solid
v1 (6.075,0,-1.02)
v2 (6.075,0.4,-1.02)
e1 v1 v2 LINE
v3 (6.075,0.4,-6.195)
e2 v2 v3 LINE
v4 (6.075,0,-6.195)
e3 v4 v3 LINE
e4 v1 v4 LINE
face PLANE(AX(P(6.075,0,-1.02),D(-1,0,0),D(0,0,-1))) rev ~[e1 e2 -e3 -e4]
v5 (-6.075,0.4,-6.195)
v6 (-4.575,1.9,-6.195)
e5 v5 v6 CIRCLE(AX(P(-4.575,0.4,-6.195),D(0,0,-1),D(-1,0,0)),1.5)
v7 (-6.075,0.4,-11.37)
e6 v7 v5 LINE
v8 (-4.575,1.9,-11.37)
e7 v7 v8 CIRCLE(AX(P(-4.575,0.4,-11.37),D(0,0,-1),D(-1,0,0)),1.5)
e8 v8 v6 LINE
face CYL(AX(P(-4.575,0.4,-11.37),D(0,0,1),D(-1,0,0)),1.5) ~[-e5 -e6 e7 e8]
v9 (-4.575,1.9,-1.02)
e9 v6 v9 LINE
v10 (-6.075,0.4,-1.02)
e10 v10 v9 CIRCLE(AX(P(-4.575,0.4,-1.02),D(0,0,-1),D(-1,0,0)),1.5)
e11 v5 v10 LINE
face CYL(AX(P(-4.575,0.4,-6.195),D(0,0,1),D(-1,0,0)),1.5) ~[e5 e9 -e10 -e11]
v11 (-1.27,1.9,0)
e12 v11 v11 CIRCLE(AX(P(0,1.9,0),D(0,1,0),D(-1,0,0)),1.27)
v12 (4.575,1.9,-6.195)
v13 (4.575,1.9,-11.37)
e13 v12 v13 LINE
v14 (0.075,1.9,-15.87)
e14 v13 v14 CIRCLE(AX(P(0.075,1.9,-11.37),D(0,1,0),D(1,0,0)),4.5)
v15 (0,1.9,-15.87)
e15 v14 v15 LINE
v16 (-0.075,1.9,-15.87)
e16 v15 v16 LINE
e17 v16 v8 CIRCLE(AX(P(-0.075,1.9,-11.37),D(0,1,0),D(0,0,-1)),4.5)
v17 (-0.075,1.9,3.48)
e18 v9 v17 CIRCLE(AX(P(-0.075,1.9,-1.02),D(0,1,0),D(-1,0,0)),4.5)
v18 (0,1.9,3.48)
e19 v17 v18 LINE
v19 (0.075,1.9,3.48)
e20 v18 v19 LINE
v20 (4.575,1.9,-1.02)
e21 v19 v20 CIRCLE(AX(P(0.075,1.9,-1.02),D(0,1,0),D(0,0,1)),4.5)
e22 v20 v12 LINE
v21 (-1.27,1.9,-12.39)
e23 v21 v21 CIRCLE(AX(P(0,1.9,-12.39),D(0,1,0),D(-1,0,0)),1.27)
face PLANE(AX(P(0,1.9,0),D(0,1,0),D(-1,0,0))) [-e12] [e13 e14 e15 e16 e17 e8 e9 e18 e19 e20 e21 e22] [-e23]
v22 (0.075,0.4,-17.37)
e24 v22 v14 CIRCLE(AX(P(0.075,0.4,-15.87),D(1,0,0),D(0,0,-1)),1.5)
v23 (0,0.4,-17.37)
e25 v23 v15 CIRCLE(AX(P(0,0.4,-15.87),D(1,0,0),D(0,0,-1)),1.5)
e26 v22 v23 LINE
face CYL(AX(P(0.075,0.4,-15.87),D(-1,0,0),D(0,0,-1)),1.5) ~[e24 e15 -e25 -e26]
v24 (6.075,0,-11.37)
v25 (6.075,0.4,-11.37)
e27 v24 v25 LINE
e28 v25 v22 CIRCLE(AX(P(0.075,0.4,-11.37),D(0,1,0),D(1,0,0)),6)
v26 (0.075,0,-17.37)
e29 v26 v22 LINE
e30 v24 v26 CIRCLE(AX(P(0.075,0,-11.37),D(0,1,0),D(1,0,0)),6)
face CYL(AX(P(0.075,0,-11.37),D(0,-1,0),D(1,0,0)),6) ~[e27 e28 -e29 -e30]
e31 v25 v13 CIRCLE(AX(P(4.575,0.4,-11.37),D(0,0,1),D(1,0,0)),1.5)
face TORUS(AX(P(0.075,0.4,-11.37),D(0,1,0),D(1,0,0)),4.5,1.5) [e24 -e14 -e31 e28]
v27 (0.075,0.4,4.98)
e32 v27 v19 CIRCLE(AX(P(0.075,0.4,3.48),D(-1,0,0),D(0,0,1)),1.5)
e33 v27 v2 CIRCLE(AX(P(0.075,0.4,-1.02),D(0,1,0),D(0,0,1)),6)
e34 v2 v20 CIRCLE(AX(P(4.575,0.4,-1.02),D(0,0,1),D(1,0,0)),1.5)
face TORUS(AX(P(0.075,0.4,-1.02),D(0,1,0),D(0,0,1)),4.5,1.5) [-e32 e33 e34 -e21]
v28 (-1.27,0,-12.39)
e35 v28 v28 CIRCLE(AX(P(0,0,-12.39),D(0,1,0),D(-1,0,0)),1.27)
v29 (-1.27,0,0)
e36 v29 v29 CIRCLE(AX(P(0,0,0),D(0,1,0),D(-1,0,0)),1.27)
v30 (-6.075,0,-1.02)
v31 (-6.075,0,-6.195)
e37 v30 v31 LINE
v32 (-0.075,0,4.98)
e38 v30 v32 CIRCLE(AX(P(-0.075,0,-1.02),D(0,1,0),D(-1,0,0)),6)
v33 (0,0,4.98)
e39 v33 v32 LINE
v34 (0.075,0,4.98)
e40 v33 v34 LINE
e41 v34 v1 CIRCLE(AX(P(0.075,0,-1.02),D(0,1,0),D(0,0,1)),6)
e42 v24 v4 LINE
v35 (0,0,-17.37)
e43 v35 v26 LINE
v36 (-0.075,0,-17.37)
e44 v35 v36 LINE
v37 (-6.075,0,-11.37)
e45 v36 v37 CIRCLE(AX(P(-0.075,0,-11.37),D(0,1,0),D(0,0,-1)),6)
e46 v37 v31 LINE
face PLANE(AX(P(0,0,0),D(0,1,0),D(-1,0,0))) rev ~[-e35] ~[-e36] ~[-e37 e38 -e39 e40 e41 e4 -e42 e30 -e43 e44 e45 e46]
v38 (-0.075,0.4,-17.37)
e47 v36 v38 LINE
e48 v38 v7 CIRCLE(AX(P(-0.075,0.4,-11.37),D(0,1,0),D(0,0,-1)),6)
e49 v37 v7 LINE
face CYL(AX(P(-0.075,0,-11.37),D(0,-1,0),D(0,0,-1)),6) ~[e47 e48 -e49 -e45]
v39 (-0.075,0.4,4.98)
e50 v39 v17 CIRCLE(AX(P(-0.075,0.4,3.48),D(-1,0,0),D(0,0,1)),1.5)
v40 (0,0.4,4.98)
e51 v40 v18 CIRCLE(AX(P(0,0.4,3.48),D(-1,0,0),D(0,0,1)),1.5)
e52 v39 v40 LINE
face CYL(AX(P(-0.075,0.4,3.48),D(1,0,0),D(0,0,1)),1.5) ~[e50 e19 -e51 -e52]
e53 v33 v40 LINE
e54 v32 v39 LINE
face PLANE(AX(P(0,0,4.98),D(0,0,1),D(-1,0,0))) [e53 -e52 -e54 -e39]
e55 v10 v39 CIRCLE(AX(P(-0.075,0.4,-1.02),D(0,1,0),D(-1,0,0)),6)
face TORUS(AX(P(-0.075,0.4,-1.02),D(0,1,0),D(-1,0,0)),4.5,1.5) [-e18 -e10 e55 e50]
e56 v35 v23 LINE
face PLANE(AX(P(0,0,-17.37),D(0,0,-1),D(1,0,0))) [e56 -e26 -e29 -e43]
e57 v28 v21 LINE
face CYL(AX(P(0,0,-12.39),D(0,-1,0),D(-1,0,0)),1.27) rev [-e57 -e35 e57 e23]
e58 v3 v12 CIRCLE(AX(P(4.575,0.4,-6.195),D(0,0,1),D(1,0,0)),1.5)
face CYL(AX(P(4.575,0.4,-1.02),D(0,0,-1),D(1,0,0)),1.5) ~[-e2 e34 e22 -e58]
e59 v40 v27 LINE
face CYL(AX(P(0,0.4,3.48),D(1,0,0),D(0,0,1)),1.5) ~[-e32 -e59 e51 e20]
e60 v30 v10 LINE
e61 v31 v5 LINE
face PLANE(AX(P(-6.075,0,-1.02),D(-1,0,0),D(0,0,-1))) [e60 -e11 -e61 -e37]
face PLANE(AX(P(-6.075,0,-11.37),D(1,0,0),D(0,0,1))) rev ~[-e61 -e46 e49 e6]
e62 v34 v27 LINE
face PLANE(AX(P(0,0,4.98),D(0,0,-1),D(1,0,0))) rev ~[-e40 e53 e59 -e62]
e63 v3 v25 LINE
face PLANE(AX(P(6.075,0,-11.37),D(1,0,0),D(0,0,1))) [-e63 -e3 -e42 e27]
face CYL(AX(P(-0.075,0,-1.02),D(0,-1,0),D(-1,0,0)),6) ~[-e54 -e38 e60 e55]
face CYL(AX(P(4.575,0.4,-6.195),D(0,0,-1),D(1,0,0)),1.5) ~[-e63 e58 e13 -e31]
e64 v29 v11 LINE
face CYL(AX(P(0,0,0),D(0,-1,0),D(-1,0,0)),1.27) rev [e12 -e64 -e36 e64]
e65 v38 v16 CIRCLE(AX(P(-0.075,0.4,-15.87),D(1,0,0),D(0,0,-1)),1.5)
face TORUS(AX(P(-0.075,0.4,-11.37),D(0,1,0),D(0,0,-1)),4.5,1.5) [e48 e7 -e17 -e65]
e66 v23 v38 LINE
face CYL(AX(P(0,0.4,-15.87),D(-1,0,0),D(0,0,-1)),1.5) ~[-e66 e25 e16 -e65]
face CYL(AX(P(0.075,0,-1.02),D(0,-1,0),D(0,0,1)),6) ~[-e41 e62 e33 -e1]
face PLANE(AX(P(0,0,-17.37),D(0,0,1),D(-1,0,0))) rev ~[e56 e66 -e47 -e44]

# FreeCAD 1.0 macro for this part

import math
import FreeCAD as App
import Part
import Sketcher

V = App.Vector
Q = App.Units.Quantity


def edges_at(feature, points):
    """Names of the edges that pass closest to the given points."""
    edges = feature.Shape.Edges
    near = lambda p: min(range(len(edges)), key=lambda i: edges[i].distToShape(Part.Vertex(*p))[0])
    return sorted({f"Edge{near(p) + 1}" for p in points})

doc = App.newDocument("Part")
body = doc.addObject("PartDesign::Body", "Body")

sketch1 = doc.addObject("Sketcher::SketchObject", "Sketch")
body.addObject(sketch1)
sketch1.AttachmentSupport = (doc.XZ_Plane, [""])
sketch1.MapMode = "FlatFace"
sketch1.addGeometry(Part.LineSegment(V(-0.07, 4.98, 0), V(0.07, 4.98, 0)), False)
sketch1.addGeometry(Part.ArcOfCircle(Part.Circle(V(0.07, -1.02, 0), V(0, 0, 1), 6), math.radians(0), math.radians(90)), False)
sketch1.addGeometry(Part.LineSegment(V(6.08, -1.02, 0), V(6.08, -11.37, 0)), False)
sketch1.addGeometry(Part.ArcOfCircle(Part.Circle(V(0.07, -11.37, 0), V(0, 0, 1), 6), math.radians(-90), math.radians(0)), False)
sketch1.addGeometry(Part.LineSegment(V(0.07, -17.37, 0), V(-0.07, -17.37, 0)), False)
sketch1.addGeometry(Part.ArcOfCircle(Part.Circle(V(-0.07, -11.37, 0), V(0, 0, 1), 6), math.radians(180), math.radians(270)), False)
sketch1.addGeometry(Part.LineSegment(V(-6.08, -11.37, 0), V(-6.08, -1.02, 0)), False)
sketch1.addGeometry(Part.ArcOfCircle(Part.Circle(V(-0.07, -1.02, 0), V(0, 0, 1), 6), math.radians(90), math.radians(180)), False)
sketch1.addGeometry(Part.Circle(V(0, -12.39, 0), V(0, 0, 1), 1.27), False)
sketch1.addGeometry(Part.Circle(V(0, 0, 0), V(0, 0, 1), 1.27), False)
sketch1.addConstraint(Sketcher.Constraint("Tangent", 0, 2, 1, 2))
sketch1.addConstraint(Sketcher.Constraint("Tangent", 1, 1, 2, 1))
sketch1.addConstraint(Sketcher.Constraint("Tangent", 2, 2, 3, 2))
sketch1.addConstraint(Sketcher.Constraint("Tangent", 3, 1, 4, 1))
sketch1.addConstraint(Sketcher.Constraint("Tangent", 4, 2, 5, 2))
sketch1.addConstraint(Sketcher.Constraint("Tangent", 5, 1, 6, 1))
sketch1.addConstraint(Sketcher.Constraint("Tangent", 6, 2, 7, 2))
sketch1.addConstraint(Sketcher.Constraint("Tangent", 7, 1, 0, 1))
sketch1.addConstraint(Sketcher.Constraint("Horizontal", 0))
sketch1.addConstraint(Sketcher.Constraint("Vertical", 2))
sketch1.addConstraint(Sketcher.Constraint("Horizontal", 4))
sketch1.addConstraint(Sketcher.Constraint("Vertical", 6))
sketch1.addConstraint(Sketcher.Constraint("Coincident", 9, 3, -1, 1))
sketch1.addConstraint(Sketcher.Constraint("Equal", 1, 3))
sketch1.addConstraint(Sketcher.Constraint("Equal", 3, 5))
sketch1.addConstraint(Sketcher.Constraint("Equal", 5, 7))
sketch1.addConstraint(Sketcher.Constraint("Equal", 8, 9))
sketch1.addConstraint(Sketcher.Constraint("PointOnObject", 8, 3, -2))
sketch1.addConstraint(Sketcher.Constraint("Radius", 1, Q("6 mm")))
sketch1.addConstraint(Sketcher.Constraint("Diameter", 8, Q("2.54 mm")))
sketch1.addConstraint(Sketcher.Constraint("DistanceX", -1, 1, 1, 1, Q("6.075 mm")))
sketch1.addConstraint(Sketcher.Constraint("DistanceX", 5, 1, -1, 1, Q("6.075 mm")))
sketch1.addConstraint(Sketcher.Constraint("DistanceY", 2, 2, 2, 1, Q("10.35 mm")))
sketch1.addConstraint(Sketcher.Constraint("DistanceY", 1, 3, -1, 1, Q("1.02 mm")))
sketch1.addConstraint(Sketcher.Constraint("DistanceY", 8, 3, -1, 1, Q("12.39 mm")))
pad1 = doc.addObject("PartDesign::Pad", "Pad")
body.addObject(pad1)
pad1.Profile = sketch1
pad1.Length = 1.9
pad1.Reversed = True
doc.recompute()

fillet = doc.addObject("PartDesign::Fillet", "Fillet")
body.addObject(fillet)
fillet.Base = (pad1, edges_at(pad1, [
    (6.075, 1.9, -3.607),
    (4.318, 1.9, -15.613),
    (-0.037, 1.9, -17.37),
    (-4.318, 1.9, -15.613),
    (-6.075, 1.9, -3.607),
    (-4.318, 1.9, 3.223),
    (-0.037, 1.9, 4.98),
    (4.318, 1.9, 3.223),
]))
fillet.Radius = 1.5

doc.recompute()
